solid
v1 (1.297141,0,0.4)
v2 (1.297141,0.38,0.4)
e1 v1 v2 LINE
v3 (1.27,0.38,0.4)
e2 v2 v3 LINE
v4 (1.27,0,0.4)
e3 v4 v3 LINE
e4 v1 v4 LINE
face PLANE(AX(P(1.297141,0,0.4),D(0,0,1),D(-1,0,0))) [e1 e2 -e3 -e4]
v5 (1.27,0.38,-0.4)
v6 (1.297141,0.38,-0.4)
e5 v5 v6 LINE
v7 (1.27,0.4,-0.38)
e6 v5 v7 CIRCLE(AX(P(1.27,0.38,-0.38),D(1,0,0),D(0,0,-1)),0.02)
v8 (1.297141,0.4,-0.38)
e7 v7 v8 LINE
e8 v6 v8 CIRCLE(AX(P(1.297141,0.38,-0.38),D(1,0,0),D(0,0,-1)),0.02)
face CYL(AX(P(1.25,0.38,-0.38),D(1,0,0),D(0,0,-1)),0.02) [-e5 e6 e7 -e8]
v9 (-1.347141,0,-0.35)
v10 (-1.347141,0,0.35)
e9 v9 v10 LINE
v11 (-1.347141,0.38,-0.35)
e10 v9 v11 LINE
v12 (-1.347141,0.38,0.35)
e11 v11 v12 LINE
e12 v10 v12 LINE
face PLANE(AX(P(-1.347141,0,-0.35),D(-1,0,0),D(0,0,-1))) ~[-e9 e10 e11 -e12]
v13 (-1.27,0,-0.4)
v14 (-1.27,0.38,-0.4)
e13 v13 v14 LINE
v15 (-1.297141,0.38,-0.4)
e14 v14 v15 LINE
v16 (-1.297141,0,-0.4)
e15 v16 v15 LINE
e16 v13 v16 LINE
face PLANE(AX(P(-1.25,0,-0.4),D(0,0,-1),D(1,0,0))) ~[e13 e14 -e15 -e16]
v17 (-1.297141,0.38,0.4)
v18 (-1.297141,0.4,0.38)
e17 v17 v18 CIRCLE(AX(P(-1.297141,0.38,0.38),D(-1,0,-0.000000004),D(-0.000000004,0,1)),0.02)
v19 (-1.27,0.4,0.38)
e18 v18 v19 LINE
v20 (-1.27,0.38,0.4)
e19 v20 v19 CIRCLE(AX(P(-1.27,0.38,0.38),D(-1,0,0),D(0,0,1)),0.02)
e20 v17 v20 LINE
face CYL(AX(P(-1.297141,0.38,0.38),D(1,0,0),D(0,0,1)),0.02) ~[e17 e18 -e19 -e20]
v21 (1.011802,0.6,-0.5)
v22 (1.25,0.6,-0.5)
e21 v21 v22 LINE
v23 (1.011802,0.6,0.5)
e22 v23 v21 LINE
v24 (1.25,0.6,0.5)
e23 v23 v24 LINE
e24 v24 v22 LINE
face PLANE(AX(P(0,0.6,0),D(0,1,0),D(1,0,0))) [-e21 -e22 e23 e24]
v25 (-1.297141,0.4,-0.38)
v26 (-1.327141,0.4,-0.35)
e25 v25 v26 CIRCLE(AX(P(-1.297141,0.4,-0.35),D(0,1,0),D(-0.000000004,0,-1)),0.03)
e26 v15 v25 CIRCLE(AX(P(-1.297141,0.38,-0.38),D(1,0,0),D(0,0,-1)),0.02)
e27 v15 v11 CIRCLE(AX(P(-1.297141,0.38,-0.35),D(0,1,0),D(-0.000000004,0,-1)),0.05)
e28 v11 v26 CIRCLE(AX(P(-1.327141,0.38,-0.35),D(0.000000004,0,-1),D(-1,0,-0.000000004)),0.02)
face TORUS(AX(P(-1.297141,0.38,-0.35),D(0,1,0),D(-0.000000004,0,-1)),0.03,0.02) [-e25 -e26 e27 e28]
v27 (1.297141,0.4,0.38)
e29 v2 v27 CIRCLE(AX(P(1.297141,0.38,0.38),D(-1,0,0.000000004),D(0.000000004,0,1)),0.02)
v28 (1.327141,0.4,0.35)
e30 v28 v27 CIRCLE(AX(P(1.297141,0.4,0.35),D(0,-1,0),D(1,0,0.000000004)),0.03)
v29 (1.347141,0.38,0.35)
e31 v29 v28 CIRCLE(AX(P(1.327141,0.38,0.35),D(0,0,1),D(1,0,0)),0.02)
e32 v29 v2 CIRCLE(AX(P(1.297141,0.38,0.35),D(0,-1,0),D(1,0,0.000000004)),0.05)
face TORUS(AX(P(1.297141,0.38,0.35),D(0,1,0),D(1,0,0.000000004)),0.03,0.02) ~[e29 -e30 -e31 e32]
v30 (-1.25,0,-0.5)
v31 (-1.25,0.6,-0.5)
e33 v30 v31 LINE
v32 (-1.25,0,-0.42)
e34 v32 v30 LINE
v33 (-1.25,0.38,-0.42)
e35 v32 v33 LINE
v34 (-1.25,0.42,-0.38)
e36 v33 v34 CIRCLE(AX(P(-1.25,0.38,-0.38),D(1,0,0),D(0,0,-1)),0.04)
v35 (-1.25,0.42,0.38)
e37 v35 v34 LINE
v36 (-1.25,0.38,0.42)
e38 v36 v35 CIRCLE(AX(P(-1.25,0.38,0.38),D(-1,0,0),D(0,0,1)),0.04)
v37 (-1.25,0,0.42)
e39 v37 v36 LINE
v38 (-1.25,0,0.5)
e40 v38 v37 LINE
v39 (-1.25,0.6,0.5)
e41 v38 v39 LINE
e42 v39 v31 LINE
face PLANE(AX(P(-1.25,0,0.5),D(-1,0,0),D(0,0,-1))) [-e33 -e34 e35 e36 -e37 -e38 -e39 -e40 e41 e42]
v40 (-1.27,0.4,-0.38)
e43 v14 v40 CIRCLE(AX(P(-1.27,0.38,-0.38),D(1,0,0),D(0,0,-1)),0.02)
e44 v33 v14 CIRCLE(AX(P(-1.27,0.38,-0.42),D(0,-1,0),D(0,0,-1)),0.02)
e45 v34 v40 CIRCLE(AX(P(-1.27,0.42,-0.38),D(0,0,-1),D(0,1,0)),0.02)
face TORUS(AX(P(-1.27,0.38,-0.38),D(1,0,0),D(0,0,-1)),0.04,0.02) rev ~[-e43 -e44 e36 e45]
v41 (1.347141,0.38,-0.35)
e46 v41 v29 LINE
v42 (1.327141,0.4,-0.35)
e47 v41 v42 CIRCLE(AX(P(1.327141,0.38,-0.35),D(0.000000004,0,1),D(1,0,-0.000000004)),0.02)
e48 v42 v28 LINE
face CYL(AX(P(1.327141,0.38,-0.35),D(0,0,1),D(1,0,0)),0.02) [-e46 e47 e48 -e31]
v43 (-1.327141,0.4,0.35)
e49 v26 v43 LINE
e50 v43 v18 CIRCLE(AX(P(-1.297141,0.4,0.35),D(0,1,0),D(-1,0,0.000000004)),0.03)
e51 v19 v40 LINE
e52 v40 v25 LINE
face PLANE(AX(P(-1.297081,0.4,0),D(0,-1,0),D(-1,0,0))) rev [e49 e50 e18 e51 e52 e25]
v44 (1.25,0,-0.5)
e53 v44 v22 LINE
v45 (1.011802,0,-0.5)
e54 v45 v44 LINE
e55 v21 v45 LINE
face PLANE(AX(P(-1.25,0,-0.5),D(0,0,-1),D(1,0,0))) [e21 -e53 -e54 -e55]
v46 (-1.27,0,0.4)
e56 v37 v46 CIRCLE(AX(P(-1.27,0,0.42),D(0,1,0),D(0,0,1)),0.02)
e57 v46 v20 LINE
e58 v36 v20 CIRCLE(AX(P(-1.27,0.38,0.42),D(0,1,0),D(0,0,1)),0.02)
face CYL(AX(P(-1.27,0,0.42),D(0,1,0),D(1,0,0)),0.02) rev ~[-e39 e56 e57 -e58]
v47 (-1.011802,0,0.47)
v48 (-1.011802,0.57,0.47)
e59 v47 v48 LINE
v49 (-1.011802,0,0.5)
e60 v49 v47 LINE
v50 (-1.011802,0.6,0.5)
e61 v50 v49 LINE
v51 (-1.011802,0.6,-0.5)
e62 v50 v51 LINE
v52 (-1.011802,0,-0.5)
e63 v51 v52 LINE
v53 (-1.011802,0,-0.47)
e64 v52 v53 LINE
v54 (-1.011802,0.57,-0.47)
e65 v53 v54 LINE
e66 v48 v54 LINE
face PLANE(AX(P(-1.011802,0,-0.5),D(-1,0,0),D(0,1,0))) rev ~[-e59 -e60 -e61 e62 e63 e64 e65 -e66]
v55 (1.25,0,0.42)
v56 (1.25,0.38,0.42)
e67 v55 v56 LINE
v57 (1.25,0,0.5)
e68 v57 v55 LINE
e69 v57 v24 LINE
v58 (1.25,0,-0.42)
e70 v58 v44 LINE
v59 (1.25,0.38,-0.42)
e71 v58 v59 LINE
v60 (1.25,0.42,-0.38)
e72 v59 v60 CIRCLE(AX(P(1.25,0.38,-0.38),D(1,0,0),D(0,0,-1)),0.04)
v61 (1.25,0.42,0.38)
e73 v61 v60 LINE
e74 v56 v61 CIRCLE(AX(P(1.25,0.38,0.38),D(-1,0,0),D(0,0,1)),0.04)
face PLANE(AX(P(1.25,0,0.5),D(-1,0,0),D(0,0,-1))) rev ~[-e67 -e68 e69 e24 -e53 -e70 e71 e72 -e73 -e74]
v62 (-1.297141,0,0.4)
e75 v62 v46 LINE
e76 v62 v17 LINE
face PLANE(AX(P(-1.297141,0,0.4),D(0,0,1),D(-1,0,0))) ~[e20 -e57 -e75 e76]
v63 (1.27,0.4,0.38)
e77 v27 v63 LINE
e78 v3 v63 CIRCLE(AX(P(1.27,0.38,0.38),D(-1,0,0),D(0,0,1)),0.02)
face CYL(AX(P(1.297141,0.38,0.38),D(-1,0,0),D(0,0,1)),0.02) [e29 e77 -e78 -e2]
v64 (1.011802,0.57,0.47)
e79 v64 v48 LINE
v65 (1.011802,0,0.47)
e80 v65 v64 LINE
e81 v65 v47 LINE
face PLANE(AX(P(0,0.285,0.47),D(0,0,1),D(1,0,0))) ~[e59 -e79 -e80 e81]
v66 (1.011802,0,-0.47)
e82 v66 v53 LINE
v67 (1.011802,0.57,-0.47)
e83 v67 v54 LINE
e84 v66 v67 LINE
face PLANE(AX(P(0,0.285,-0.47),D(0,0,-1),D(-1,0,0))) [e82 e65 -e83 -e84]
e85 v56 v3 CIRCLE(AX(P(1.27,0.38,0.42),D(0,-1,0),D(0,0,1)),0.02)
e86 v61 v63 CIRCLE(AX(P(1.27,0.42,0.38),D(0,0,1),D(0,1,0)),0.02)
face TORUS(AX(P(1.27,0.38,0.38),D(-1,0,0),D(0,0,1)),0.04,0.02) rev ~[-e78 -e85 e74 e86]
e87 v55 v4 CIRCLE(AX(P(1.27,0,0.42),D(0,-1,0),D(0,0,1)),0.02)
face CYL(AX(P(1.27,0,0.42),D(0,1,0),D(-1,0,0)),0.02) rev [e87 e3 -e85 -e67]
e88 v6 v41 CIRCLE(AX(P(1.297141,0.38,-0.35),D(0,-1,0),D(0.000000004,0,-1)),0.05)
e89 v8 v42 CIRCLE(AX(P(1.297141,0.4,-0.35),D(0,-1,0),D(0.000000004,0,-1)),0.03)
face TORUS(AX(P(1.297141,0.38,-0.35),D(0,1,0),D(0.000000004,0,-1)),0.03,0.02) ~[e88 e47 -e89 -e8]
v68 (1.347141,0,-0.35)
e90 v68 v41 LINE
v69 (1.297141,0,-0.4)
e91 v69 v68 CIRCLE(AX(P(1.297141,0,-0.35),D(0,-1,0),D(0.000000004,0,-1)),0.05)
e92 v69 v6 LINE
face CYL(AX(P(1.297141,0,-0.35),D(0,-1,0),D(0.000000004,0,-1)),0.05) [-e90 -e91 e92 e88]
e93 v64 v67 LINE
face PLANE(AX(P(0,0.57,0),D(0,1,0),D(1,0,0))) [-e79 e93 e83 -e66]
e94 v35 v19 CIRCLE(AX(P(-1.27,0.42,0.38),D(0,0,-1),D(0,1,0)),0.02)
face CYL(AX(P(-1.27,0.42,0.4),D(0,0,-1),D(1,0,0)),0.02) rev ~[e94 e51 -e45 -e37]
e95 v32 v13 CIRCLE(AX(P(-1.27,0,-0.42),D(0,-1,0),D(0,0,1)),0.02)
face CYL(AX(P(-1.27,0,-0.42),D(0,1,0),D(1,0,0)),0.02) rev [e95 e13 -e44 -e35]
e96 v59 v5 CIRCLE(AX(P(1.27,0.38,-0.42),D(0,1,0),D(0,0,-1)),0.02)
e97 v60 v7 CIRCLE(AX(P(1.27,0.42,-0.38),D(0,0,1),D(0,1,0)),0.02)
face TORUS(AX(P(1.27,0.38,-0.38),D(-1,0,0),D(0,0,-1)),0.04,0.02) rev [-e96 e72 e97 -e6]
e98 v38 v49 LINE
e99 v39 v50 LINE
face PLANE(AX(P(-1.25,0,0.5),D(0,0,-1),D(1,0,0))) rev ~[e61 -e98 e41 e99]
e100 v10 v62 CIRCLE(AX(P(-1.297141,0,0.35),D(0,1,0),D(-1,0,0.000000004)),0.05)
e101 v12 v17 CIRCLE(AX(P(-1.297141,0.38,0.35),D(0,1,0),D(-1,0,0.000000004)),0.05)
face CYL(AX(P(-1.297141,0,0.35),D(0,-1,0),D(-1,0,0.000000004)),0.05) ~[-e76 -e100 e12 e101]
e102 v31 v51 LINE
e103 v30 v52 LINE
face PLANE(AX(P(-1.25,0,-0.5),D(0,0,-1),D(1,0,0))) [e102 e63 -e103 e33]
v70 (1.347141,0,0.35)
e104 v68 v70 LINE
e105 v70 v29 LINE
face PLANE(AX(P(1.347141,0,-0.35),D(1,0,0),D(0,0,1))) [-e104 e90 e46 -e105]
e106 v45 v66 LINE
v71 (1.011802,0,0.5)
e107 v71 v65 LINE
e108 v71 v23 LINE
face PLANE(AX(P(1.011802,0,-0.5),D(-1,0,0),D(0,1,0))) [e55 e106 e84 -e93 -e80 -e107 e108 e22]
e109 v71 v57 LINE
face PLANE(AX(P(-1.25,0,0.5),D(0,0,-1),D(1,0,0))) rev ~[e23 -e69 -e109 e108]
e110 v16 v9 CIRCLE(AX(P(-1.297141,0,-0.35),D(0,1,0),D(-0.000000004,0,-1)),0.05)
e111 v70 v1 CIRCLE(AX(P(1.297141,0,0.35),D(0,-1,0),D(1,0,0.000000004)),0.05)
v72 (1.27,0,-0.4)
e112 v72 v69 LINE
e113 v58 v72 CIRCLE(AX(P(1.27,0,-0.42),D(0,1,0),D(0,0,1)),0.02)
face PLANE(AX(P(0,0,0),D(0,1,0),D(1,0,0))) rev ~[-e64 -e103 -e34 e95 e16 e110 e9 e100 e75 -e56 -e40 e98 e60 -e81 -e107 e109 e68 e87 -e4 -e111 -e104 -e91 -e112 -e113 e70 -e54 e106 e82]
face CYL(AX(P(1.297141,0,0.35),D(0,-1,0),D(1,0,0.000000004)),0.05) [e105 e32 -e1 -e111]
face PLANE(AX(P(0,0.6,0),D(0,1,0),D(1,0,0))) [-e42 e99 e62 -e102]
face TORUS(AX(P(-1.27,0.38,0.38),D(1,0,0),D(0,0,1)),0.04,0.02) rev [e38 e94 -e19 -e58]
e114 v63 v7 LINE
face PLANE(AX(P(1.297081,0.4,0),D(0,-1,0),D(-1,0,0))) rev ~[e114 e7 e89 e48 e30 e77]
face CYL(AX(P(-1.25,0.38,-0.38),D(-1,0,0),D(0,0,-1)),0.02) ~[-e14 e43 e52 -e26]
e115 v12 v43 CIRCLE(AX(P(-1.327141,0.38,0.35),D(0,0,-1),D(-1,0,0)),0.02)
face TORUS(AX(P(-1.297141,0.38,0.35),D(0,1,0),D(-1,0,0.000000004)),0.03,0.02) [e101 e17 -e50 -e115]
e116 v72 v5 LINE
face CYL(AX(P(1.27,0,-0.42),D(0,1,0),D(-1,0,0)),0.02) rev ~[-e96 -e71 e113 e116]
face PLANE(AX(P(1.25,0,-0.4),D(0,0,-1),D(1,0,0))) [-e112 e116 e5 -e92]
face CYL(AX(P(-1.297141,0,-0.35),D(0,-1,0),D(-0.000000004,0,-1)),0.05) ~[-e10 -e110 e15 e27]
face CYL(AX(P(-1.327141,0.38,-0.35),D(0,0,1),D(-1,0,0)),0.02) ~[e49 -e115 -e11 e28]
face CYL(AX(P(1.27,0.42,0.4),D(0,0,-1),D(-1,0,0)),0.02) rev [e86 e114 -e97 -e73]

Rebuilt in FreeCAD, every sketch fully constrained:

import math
import FreeCAD as App
import Part
import Sketcher
Q = App.Units.Quantity


def edges_at(feature, points):
    """Names of the edges that pass closest to the given points."""
    edges = feature.Shape.Edges
    near = lambda p: min(range(len(edges)), key=lambda i: edges[i].distToShape(Part.Vertex(*p))[0])
    return sorted({f"Edge{near(p) + 1}" for p in points})


def add_polygon(sketch, points):
    """Adds a closed chain of lines whose ends are joined by coincident constraints."""
    first, n = sketch.GeometryCount, len(points)
    for a, b in zip(points, points[1:] + points[:1]):
        sketch.addGeometry(Part.LineSegment(App.Vector(*a, 0), App.Vector(*b, 0)), False)
    for i in range(n):
        sketch.addConstraint(Sketcher.Constraint("Coincident", first + i, 2, first + (i + 1) % n, 1))

doc = App.newDocument("Part")
params = doc.addObject("Spreadsheet::Sheet", "Params")
for row, (alias, value) in enumerate([
    ("sketch1_height", "1 mm"),
    ("sketch1_width", "2.5 mm"),
    ("pad1_length", "0.6 mm"),
    ("sketch2_height", "1 mm"),
    ("pocket1_length", "0.03 mm"),
    ("sketch3_radius", "0.05 mm"),
    ("sketch3_height", "0.8 mm"),
    ("pad2_length", "0.4 mm"),
    ("fillet_radius", "0.02 mm"),
    ("fillet2_radius", "0.02 mm"),
    ("sketch4_height", "0.57 mm"),
    ("pocket2_length", "0.03 mm"),
], start=1):
    params.set(f"A{row}", alias)
    params.set(f"B{row}", "=" + value)
    params.setAlias(f"B{row}", alias)

body = doc.addObject("PartDesign::Body", "Body")

sketch1 = doc.addObject("Sketcher::SketchObject", "Sketch")
body.addObject(sketch1)
sketch1.AttachmentSupport = (doc.XZ_Plane, [""])
sketch1.MapMode = "FlatFace"
add_polygon(sketch1, [(-1.25, -0.5), (-1.25, 0.5), (1.25, 0.5), (1.25, -0.5)])
sketch1.addConstraint(Sketcher.Constraint("Vertical", 0))
sketch1.addConstraint(Sketcher.Constraint("Horizontal", 1))
sketch1.addConstraint(Sketcher.Constraint("Vertical", 2))
sketch1.addConstraint(Sketcher.Constraint("Horizontal", 3))
sketch1.addConstraint(Sketcher.Constraint("Symmetric", 0, 2, 2, 2, -1, 1))
sketch1.addConstraint(Sketcher.Constraint("DistanceY", 0, 1, 0, 2, Q("1 mm")))
sketch1.addConstraint(Sketcher.Constraint("DistanceX", 1, 1, 1, 2, Q("2.5 mm")))
sketch1.setExpression("Constraints[9]", "Params.sketch1_height")
sketch1.setExpression("Constraints[10]", "Params.sketch1_width")
pad1 = doc.addObject("PartDesign::Pad", "Pad")
body.addObject(pad1)
pad1.Profile = sketch1
pad1.setExpression("Length", "Params.pad1_length")
pad1.Reversed = True

sketch2 = doc.addObject("Sketcher::SketchObject", "Sketch001")
body.addObject(sketch2)
sketch2.AttachmentSupport = (doc.XZ_Plane, [""])
sketch2.MapMode = "FlatFace"
sketch2.AttachmentOffset = App.Placement(App.Vector(0, 0, -0.6), App.Rotation())
add_polygon(sketch2, [(-1.011802, -0.5), (-1.011802, 0.5), (1.011802, 0.5), (1.011802, -0.5)])
sketch2.addConstraint(Sketcher.Constraint("Vertical", 0))
sketch2.addConstraint(Sketcher.Constraint("Horizontal", 1))
sketch2.addConstraint(Sketcher.Constraint("Vertical", 2))
sketch2.addConstraint(Sketcher.Constraint("Horizontal", 3))
sketch2.addConstraint(Sketcher.Constraint("Symmetric", 0, 2, 2, 2, -1, 1))
sketch2.addConstraint(Sketcher.Constraint("DistanceY", 0, 1, 0, 2, Q("1 mm")))
sketch2.addConstraint(Sketcher.Constraint("DistanceX", 0, 2, -1, 1, Q("1.011802 mm")))
sketch2.setExpression("Constraints[9]", "Params.sketch2_height")
pocket1 = doc.addObject("PartDesign::Pocket", "Pocket")
body.addObject(pocket1)
pocket1.Profile = sketch2
pocket1.setExpression("Length", "Params.pocket1_length")
pocket1.Reversed = True

sketch3 = doc.addObject("Sketcher::SketchObject", "Sketch002")
body.addObject(sketch3)
sketch3.AttachmentSupport = (doc.XZ_Plane, [""])
sketch3.MapMode = "FlatFace"
sketch3.addGeometry(Part.LineSegment(App.Vector(1.297141, -0.4, 0), App.Vector(1.25, -0.4, 0)), False)
sketch3.addGeometry(Part.LineSegment(App.Vector(1.25, -0.4, 0), App.Vector(1.25, 0.4, 0)), False)
sketch3.addGeometry(Part.LineSegment(App.Vector(1.25, 0.4, 0), App.Vector(1.297141, 0.4, 0)), False)
sketch3.addGeometry(Part.ArcOfCircle(Part.Circle(App.Vector(1.297141, 0.35, 0), App.Vector(0, 0, 1), 0.05), math.radians(0), math.radians(90)), False)
sketch3.addGeometry(Part.LineSegment(App.Vector(1.347141, 0.35, 0), App.Vector(1.347141, -0.35, 0)), False)
sketch3.addGeometry(Part.ArcOfCircle(Part.Circle(App.Vector(1.297141, -0.35, 0), App.Vector(0, 0, 1), 0.05), math.radians(-90), math.radians(0)), False)
sketch3.addConstraint(Sketcher.Constraint("Coincident", 0, 2, 1, 1))
sketch3.addConstraint(Sketcher.Constraint("Coincident", 1, 2, 2, 1))
sketch3.addConstraint(Sketcher.Constraint("Tangent", 2, 2, 3, 2))
sketch3.addConstraint(Sketcher.Constraint("Tangent", 3, 1, 4, 1))
sketch3.addConstraint(Sketcher.Constraint("Tangent", 4, 2, 5, 2))
sketch3.addConstraint(Sketcher.Constraint("Tangent", 5, 1, 0, 1))
sketch3.addConstraint(Sketcher.Constraint("Horizontal", 0))
sketch3.addConstraint(Sketcher.Constraint("Vertical", 1))
sketch3.addConstraint(Sketcher.Constraint("Horizontal", 2))
sketch3.addConstraint(Sketcher.Constraint("Vertical", 4))
sketch3.addConstraint(Sketcher.Constraint("Equal", 3, 5))
sketch3.addConstraint(Sketcher.Constraint("Radius", 3, Q("0.05 mm")))
sketch3.addConstraint(Sketcher.Constraint("DistanceY", 1, 1, 1, 2, Q("0.8 mm")))
sketch3.addConstraint(Sketcher.Constraint("DistanceY", 0, 2, -1, 1, Q("0.4 mm")))
sketch3.addConstraint(Sketcher.Constraint("DistanceX", -1, 1, 0, 2, Q("1.25 mm")))
sketch3.addConstraint(Sketcher.Constraint("DistanceX", 0, 2, 0, 1, Q("0.047141 mm")))
sketch3.setExpression("Constraints[11]", "Params.sketch3_radius")
sketch3.setExpression("Constraints[12]", "Params.sketch3_height")
pad2 = doc.addObject("PartDesign::Pad", "Pad001")
body.addObject(pad2)
pad2.Profile = sketch3
pad2.setExpression("Length", "Params.pad2_length")
pad2.Reversed = True
doc.recompute()

fillet = doc.addObject("PartDesign::Fillet", "Fillet")
body.addObject(fillet)
fillet.Base = (pad2, edges_at(pad2, [
    (1.25, 0.2, -0.4),
    (1.25, 0.2, 0.4),
    (1.25, 0.4, 0),
    (1.274, 0.4, 0.4),
    (1.332, 0.4, 0.385),
    (1.347, 0.4, 0),
    (1.332, 0.4, -0.385),
    (1.274, 0.4, -0.4),
]))
fillet.setExpression("Radius", "Params.fillet_radius")
doc.recompute()

mirrored = doc.addObject("PartDesign::Mirrored", "Mirrored")
body.addObject(mirrored)
mirrored.Originals = [pad2]
mirrored.MirrorPlane = (doc.YZ_Plane, [""])
body.Tip = mirrored
doc.recompute()

fillet2 = doc.addObject("PartDesign::Fillet", "Fillet001")
body.addObject(fillet2)
fillet2.Base = (mirrored, edges_at(mirrored, [
    (-1.25, 0.2, -0.4),
    (-1.25, 0.2, 0.4),
    (-1.25, 0.4, 0),
    (-1.274, 0.4, 0.4),
    (-1.332, 0.4, 0.385),
    (-1.347, 0.4, 0),
    (-1.332, 0.4, -0.385),
    (-1.274, 0.4, -0.4),
]))
fillet2.setExpression("Radius", "Params.fillet2_radius")

sketch4 = doc.addObject("Sketcher::SketchObject", "Sketch003")
body.addObject(sketch4)
sketch4.AttachmentSupport = (doc.XY_Plane, [""])
sketch4.MapMode = "FlatFace"
sketch4.AttachmentOffset = App.Placement(App.Vector(0, 0, -0.5), App.Rotation())
add_polygon(sketch4, [(1.011802, 0.57), (1.011802, 0), (-1.011802, 0), (-1.011802, 0.57)])
sketch4.addConstraint(Sketcher.Constraint("Vertical", 0))
sketch4.addConstraint(Sketcher.Constraint("Horizontal", 1))
sketch4.addConstraint(Sketcher.Constraint("Vertical", 2))
sketch4.addConstraint(Sketcher.Constraint("Horizontal", 3))
sketch4.addConstraint(Sketcher.Constraint("Symmetric", 0, 2, 1, 2, -1, 1))
sketch4.addConstraint(Sketcher.Constraint("DistanceY", 0, 2, 0, 1, Q("0.57 mm")))
sketch4.addConstraint(Sketcher.Constraint("DistanceX", -1, 1, 0, 2, Q("1.011802 mm")))
sketch4.setExpression("Constraints[9]", "Params.sketch4_height")
pocket2 = doc.addObject("PartDesign::Pocket", "Pocket001")
body.addObject(pocket2)
pocket2.Profile = sketch4
pocket2.setExpression("Length", "Params.pocket2_length")
pocket2.Reversed = True
doc.recompute()

mirrored2 = doc.addObject("PartDesign::Mirrored", "Mirrored001")
body.addObject(mirrored2)
mirrored2.Originals = [pocket2]
mirrored2.MirrorPlane = (doc.XY_Plane, [""])
body.Tip = mirrored2

doc.recompute()
